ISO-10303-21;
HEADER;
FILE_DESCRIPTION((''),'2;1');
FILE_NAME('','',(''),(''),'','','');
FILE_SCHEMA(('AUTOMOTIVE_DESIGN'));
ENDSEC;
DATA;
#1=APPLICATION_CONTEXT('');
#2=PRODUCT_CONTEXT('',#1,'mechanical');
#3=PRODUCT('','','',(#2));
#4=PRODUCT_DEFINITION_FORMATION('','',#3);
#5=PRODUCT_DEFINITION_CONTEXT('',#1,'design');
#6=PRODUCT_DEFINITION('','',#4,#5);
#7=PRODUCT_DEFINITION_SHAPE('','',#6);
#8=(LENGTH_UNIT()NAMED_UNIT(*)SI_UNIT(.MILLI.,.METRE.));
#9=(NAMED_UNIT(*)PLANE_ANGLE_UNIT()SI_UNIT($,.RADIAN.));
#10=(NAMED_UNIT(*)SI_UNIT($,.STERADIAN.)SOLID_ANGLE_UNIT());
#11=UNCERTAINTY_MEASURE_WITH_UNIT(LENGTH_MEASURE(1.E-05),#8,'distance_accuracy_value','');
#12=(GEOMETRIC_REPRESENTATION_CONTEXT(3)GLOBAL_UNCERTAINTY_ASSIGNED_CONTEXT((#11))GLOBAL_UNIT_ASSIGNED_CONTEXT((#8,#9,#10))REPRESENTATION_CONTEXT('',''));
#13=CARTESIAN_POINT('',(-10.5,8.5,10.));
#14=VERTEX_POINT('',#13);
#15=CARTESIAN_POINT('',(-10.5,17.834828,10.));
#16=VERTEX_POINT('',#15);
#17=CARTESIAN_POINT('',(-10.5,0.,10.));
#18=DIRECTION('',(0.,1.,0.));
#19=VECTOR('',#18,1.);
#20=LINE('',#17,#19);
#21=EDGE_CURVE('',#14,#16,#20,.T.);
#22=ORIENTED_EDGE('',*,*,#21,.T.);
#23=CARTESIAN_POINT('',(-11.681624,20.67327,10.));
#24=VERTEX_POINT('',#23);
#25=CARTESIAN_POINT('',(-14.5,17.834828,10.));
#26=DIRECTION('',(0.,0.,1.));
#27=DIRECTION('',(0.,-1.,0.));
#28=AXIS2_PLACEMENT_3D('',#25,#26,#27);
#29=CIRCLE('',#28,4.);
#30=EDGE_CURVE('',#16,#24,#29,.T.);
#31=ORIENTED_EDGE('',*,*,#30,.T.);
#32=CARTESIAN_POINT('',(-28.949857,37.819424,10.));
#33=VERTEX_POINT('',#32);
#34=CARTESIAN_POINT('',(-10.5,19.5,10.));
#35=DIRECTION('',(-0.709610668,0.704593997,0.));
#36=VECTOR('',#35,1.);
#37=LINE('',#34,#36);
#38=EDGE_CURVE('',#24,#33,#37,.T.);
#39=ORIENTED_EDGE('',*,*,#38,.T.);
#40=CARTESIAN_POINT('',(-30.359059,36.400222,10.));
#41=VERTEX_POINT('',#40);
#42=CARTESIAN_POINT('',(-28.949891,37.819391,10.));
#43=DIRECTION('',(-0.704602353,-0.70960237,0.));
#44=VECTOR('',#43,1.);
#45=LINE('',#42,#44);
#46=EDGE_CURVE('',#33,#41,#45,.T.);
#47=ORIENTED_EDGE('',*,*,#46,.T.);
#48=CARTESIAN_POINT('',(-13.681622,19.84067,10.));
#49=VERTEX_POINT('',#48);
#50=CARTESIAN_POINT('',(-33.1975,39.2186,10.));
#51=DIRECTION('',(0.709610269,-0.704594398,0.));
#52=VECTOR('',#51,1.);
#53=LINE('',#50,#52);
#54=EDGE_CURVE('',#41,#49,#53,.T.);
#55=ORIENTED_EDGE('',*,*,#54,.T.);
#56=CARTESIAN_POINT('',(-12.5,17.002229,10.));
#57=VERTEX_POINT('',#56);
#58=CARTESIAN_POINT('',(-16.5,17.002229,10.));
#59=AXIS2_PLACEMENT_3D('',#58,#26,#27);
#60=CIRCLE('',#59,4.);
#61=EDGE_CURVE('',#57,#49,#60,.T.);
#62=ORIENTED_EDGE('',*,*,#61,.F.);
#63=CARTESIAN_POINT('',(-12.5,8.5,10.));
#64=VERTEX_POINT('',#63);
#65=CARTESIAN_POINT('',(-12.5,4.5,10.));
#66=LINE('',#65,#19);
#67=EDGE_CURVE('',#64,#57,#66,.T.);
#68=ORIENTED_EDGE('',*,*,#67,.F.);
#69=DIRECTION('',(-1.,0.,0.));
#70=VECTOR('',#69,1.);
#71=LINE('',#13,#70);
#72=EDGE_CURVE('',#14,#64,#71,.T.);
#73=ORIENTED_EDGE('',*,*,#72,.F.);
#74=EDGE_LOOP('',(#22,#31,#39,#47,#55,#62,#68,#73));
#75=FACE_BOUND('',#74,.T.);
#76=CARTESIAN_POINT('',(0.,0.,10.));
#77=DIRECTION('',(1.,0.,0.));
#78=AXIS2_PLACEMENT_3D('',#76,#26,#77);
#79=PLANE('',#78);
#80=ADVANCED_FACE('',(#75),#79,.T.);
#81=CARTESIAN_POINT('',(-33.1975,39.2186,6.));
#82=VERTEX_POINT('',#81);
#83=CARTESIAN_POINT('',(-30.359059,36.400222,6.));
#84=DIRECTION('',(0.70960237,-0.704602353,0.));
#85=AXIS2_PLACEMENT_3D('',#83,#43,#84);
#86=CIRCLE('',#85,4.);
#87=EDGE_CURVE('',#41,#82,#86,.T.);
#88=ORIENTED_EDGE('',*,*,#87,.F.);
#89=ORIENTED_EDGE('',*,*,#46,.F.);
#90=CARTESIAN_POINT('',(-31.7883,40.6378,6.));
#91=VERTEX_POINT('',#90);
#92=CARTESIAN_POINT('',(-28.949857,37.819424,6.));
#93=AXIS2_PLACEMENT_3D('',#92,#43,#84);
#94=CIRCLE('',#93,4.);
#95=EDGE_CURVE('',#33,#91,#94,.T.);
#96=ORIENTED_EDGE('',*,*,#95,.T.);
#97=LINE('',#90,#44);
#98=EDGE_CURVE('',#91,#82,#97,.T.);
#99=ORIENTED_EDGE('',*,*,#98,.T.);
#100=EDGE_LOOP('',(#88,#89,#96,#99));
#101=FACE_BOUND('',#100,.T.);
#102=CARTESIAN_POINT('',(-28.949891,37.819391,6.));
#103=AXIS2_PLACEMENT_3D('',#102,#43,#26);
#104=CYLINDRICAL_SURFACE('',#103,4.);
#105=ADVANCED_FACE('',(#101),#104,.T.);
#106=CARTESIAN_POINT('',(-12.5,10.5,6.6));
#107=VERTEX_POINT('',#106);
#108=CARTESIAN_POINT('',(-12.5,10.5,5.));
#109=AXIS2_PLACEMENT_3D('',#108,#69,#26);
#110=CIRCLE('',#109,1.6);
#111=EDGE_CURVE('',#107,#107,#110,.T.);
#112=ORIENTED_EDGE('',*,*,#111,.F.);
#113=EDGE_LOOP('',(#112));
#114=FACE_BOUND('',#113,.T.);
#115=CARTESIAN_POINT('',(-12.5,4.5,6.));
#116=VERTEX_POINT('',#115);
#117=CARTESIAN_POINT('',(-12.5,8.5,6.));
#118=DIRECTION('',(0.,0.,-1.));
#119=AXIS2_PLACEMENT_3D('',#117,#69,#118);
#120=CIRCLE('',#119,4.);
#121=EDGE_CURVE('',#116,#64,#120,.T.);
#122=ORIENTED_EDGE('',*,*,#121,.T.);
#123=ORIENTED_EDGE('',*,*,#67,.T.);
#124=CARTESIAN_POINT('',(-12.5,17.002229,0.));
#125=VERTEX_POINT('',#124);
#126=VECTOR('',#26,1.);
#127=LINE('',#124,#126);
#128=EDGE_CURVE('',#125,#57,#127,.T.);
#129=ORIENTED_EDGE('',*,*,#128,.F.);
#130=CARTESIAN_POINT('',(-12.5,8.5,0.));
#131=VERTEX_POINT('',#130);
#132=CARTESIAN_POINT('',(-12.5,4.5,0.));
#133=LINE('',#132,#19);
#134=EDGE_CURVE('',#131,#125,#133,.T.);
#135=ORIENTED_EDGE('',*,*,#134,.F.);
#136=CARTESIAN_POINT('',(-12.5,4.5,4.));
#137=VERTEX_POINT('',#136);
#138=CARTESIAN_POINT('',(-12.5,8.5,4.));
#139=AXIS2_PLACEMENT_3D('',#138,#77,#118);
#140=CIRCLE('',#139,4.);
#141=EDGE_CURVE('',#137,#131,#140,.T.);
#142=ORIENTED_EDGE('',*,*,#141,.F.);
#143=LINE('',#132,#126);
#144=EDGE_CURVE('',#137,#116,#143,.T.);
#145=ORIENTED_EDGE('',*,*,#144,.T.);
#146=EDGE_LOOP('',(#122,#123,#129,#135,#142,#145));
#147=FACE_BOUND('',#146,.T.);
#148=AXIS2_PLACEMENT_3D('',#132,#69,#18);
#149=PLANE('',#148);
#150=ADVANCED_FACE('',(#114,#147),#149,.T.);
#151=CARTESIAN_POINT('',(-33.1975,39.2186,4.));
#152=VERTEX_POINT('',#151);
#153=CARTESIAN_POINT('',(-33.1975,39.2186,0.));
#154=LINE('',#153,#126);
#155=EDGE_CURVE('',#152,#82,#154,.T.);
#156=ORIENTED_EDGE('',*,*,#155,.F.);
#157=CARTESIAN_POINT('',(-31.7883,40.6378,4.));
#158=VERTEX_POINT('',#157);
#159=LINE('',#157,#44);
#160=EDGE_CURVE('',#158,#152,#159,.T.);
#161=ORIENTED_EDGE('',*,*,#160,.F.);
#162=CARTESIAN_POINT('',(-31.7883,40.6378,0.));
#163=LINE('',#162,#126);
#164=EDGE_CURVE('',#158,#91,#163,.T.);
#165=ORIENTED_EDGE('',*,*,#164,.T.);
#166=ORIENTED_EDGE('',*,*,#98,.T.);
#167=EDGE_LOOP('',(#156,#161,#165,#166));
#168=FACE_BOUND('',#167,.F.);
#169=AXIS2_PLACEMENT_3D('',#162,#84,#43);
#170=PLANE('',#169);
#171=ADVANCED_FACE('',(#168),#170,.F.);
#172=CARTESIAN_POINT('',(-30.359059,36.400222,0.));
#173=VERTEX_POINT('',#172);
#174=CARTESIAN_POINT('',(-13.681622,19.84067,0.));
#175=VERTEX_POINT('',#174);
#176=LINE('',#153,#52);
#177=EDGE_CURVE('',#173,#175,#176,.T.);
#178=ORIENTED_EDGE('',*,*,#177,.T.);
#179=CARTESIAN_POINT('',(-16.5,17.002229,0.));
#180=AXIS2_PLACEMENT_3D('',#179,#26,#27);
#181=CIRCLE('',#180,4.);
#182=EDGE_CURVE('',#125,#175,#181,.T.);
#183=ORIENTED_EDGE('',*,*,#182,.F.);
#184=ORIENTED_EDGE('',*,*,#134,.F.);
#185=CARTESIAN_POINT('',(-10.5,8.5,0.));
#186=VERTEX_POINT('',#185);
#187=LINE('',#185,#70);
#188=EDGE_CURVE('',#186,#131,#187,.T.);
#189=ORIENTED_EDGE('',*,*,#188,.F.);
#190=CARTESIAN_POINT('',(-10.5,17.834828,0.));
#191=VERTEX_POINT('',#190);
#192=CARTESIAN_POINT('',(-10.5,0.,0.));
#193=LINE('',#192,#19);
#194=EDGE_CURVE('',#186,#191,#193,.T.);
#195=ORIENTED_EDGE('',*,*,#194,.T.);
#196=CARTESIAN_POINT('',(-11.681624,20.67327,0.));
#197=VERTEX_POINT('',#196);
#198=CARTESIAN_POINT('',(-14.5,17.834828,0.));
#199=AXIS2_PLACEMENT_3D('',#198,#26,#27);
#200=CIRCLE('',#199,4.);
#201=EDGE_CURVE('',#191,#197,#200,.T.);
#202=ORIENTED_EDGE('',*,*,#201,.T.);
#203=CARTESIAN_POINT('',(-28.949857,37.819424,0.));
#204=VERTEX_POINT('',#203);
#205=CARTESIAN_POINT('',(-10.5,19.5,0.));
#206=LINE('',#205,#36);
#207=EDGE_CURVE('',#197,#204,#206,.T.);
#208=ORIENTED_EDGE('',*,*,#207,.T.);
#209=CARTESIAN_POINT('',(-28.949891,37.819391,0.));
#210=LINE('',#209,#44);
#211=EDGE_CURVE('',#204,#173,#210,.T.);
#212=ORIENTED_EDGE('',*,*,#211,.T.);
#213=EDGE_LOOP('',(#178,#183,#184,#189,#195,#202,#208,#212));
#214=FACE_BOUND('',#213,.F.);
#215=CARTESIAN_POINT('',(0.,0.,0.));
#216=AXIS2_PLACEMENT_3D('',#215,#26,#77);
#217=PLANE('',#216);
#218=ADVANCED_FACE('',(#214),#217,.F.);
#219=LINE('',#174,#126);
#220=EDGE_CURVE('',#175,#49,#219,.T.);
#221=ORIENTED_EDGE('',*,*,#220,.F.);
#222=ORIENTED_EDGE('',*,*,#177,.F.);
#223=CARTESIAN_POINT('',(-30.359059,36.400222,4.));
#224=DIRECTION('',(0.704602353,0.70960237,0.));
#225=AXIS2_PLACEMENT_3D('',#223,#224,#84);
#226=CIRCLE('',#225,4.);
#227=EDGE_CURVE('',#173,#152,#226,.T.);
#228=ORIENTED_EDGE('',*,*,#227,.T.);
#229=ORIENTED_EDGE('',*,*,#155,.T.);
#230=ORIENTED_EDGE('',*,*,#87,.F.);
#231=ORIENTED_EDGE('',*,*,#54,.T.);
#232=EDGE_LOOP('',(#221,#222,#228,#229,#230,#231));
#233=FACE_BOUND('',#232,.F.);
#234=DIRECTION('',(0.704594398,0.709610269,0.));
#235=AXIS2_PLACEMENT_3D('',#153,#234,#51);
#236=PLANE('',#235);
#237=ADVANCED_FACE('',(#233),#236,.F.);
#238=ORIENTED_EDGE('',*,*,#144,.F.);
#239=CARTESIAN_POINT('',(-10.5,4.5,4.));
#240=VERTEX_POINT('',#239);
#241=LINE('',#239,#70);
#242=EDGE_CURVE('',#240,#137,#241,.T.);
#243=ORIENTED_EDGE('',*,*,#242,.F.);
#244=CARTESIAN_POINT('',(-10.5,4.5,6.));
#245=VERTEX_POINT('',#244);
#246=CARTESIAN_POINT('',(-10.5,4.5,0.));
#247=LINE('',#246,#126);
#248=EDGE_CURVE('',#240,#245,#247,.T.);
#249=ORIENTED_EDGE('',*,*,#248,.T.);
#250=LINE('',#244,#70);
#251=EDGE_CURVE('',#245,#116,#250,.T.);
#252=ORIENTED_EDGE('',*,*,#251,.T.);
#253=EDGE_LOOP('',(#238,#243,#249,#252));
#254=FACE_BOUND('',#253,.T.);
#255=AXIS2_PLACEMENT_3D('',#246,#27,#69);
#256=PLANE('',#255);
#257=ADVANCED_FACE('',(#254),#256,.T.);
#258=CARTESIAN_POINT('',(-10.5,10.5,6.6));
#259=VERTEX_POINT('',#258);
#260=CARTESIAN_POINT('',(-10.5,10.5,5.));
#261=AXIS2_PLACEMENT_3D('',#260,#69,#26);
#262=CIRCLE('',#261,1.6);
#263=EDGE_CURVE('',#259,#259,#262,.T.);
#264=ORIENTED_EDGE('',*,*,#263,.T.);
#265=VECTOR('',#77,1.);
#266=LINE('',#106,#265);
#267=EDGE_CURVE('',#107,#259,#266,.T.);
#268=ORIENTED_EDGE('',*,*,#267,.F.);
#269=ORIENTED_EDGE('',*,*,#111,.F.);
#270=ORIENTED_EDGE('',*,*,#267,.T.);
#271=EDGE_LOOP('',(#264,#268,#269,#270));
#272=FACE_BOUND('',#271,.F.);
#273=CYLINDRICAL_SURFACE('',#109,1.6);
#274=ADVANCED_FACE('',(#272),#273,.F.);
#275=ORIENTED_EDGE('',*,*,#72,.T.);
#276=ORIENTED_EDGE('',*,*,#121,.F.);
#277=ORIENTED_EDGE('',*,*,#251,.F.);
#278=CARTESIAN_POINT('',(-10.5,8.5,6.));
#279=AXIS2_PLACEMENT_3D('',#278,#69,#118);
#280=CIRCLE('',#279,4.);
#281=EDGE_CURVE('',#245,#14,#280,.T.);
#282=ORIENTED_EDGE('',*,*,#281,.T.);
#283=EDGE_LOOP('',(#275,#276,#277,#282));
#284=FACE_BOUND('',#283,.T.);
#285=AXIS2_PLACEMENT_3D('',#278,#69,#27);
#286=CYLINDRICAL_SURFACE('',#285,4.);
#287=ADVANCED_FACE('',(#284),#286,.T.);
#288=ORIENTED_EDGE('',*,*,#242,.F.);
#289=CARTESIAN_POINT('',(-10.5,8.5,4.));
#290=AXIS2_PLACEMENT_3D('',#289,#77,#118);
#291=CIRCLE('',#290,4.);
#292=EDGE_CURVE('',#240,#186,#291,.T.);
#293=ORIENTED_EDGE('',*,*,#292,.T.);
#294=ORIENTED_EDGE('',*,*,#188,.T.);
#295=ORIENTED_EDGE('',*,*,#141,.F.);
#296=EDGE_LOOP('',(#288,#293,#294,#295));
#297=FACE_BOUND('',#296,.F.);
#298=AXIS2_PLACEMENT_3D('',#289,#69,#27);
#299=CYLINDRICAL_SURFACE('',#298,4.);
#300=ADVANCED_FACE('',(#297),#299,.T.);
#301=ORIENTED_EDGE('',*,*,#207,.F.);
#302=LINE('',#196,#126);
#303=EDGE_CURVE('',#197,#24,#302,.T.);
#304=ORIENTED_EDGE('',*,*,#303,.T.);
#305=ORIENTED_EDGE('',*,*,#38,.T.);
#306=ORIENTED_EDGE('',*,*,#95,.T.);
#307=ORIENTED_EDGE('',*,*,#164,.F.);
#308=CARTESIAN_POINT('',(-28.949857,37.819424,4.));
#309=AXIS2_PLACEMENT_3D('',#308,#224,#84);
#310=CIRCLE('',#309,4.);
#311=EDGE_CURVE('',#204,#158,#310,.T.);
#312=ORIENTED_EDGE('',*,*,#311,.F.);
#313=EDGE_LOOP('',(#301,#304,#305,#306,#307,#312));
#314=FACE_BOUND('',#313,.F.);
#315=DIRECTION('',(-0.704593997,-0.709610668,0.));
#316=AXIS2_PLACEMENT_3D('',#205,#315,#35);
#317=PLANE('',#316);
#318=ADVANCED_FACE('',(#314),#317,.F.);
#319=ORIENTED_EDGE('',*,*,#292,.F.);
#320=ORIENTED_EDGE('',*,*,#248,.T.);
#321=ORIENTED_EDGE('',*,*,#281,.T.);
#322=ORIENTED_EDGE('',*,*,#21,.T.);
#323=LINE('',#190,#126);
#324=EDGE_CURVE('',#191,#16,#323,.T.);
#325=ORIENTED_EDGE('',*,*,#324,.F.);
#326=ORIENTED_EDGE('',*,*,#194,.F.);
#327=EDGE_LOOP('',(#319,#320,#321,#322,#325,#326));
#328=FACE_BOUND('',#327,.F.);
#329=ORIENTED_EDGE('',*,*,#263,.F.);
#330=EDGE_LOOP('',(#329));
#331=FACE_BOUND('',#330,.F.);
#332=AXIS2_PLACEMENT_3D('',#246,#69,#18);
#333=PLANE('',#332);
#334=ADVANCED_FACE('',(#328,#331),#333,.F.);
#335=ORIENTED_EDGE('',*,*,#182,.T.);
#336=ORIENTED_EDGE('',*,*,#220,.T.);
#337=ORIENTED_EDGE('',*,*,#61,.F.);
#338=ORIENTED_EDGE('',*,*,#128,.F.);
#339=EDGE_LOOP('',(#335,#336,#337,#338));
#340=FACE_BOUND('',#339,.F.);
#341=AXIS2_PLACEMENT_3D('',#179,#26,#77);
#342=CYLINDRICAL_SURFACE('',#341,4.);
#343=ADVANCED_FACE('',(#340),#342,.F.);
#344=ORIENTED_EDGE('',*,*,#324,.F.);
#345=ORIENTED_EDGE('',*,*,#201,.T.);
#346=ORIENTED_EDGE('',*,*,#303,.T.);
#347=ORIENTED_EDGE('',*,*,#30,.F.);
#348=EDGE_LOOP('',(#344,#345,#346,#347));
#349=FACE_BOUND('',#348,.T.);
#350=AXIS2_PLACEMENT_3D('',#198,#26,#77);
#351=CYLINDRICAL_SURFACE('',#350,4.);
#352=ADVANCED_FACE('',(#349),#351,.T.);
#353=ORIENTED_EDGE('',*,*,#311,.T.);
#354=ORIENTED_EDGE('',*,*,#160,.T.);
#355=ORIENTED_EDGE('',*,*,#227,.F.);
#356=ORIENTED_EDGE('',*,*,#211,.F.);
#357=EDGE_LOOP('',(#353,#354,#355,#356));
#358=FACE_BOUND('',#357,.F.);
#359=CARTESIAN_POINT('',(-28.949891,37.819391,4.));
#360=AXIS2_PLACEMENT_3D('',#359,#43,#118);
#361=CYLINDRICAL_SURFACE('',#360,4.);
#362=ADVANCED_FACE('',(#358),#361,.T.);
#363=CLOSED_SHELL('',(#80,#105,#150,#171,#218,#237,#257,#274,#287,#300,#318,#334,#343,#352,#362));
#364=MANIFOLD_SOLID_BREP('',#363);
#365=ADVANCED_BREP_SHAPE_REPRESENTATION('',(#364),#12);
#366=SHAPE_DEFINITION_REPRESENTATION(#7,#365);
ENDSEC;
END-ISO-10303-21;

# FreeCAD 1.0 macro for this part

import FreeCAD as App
import Part
import Sketcher

V = App.Vector


def edges_at(feature, points):
    """Names of the edges that pass closest to the given points."""
    edges = feature.Shape.Edges
    near = lambda p: min(range(len(edges)), key=lambda i: edges[i].distToShape(Part.Vertex(*p))[0])
    return sorted({f"Edge{near(p) + 1}" for p in points})

doc = App.newDocument("Part")
body = doc.addObject("PartDesign::Body", "Body")

sketch1 = doc.addObject("Sketcher::SketchObject", "Sketch")
body.addObject(sketch1)
sketch1.AttachmentSupport = (doc.XY_Plane, [""])
sketch1.MapMode = "FlatFace"
sketch1.addGeometry([
    Part.LineSegment(V(-12.5, 4.5, 0), V(-10.5, 4.5, 0)),
    Part.LineSegment(V(-10.5, 4.5, 0), V(-10.5, 19.5, 0)),
    Part.LineSegment(V(-10.5, 19.5, 0), V(-31.8, 40.6, 0)),
    Part.LineSegment(V(-31.8, 40.6, 0), V(-33.2, 39.2, 0)),
    Part.LineSegment(V(-33.2, 39.2, 0), V(-12.5, 18.7, 0)),
    Part.LineSegment(V(-12.5, 18.7, 0), V(-12.5, 4.5, 0)),
], False)
sketch1.addConstraint([
    Sketcher.Constraint("Coincident", 0, 2, 1, 1),
    Sketcher.Constraint("Coincident", 1, 2, 2, 1),
    Sketcher.Constraint("Coincident", 2, 2, 3, 1),
    Sketcher.Constraint("Coincident", 3, 2, 4, 1),
    Sketcher.Constraint("Coincident", 4, 2, 5, 1),
    Sketcher.Constraint("Coincident", 5, 2, 0, 1),
    Sketcher.Constraint("Horizontal", 0),
    Sketcher.Constraint("Vertical", 1),
    Sketcher.Constraint("Vertical", 5),
    Sketcher.Constraint("Perpendicular", 2, 3),
    Sketcher.Constraint("Perpendicular", 3, 4),
    Sketcher.Constraint("DistanceX", 0, 1, 0, 2, 2.0),
    Sketcher.Constraint("DistanceY", 1, 1, 1, 2, 15.0),
    Sketcher.Constraint("Distance", 2, 30.0),
    Sketcher.Constraint("Distance", 3, 2.0),
    Sketcher.Constraint("DistanceX", 0, 2, -1, 1, 10.5),
    Sketcher.Constraint("DistanceY", -1, 1, 0, 2, 4.5),
    Sketcher.Constraint("DistanceY", 5, 2, 5, 1, 14.1674),
])
pad1 = doc.addObject("PartDesign::Pad", "Pad")
body.addObject(pad1)
pad1.Profile = sketch1
pad1.Length = 10
doc.recompute()

fillet = doc.addObject("PartDesign::Fillet", "Fillet")
body.addObject(fillet)
fillet.Base = (pad1, edges_at(pad1, [
    (-12.5, 18.667, 5),
    (-10.5, 19.5, 5),
    (-11.5, 4.5, 10),
    (-11.5, 4.5, 0),
    (-32.493, 39.928, 10),
    (-32.493, 39.928, 0),
]))
fillet.Radius = 4

sketch2 = doc.addObject("Sketcher::SketchObject", "Sketch001")
body.addObject(sketch2)
sketch2.AttachmentSupport = (doc.YZ_Plane, [""])
sketch2.MapMode = "FlatFace"
sketch2.AttachmentOffset = App.Placement(V(0, 0, -12.5), App.Rotation())
sketch2.addGeometry(Part.Circle(V(10.5, 5, 0), V(0, 0, 1), 1.6), False)
sketch2.addConstraint([
    Sketcher.Constraint("Diameter", 0, 3.2),
    Sketcher.Constraint("DistanceY", -1, 1, 0, 3, 5.0),
    Sketcher.Constraint("DistanceX", -1, 1, 0, 3, 10.5),
])
pocket1 = doc.addObject("PartDesign::Pocket", "Pocket")
body.addObject(pocket1)
pocket1.Profile = sketch2
pocket1.Length = 10
pocket1.Reversed = True

doc.recompute()
